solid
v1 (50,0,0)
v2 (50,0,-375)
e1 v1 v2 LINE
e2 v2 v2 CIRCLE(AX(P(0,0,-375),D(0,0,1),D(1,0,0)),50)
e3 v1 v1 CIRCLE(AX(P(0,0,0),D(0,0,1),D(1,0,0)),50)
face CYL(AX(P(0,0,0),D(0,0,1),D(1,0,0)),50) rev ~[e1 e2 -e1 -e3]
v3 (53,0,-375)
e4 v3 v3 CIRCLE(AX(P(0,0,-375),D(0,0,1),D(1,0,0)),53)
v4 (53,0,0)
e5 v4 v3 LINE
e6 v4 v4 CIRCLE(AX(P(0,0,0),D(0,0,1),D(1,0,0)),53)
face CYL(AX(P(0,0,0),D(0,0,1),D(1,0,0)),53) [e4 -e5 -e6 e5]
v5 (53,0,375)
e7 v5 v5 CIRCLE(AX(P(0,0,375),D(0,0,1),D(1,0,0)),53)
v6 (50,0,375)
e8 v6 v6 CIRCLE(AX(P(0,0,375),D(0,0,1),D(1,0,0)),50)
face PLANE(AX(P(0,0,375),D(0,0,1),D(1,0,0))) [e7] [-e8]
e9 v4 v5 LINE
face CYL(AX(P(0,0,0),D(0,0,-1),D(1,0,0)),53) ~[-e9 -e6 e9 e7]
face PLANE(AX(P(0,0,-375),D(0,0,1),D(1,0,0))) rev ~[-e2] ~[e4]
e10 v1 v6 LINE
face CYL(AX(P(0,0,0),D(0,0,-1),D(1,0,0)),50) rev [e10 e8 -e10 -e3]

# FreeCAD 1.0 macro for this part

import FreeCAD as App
import Part
import Sketcher
from FreeCAD import Vector

doc = App.newDocument("Part")
body = doc.addObject("PartDesign::Body", "Body")

# Sketch on XY plane
sketch1 = body.newObject("Sketcher::SketchObject", "Sketch")
sketch1.AttachmentSupport = (doc.getObject("XY_Plane"), [""])
sketch1.MapMode = "FlatFace"
sketch1.addGeometry(Part.Circle(Vector(0, 0, 0), Vector(0, 0, 1), 53), False)
sketch1.addGeometry(Part.Circle(Vector(0, 0, 0), Vector(0, 0, 1), 50), False)
sketch1.addConstraint(Sketcher.Constraint("Coincident", 0, 3, -1, 1))
sketch1.addConstraint(Sketcher.Constraint("Coincident", 1, 3, -1, 1))
sketch1.addConstraint(Sketcher.Constraint("Diameter", 1, 100.0))
sketch1.addConstraint(Sketcher.Constraint("Diameter", 0, 106.0))
pad1 = body.newObject("PartDesign::Pad", "Pad")
pad1.Profile = sketch1
pad1.Length = 750
pad1.Midplane = True

doc.recompute()
